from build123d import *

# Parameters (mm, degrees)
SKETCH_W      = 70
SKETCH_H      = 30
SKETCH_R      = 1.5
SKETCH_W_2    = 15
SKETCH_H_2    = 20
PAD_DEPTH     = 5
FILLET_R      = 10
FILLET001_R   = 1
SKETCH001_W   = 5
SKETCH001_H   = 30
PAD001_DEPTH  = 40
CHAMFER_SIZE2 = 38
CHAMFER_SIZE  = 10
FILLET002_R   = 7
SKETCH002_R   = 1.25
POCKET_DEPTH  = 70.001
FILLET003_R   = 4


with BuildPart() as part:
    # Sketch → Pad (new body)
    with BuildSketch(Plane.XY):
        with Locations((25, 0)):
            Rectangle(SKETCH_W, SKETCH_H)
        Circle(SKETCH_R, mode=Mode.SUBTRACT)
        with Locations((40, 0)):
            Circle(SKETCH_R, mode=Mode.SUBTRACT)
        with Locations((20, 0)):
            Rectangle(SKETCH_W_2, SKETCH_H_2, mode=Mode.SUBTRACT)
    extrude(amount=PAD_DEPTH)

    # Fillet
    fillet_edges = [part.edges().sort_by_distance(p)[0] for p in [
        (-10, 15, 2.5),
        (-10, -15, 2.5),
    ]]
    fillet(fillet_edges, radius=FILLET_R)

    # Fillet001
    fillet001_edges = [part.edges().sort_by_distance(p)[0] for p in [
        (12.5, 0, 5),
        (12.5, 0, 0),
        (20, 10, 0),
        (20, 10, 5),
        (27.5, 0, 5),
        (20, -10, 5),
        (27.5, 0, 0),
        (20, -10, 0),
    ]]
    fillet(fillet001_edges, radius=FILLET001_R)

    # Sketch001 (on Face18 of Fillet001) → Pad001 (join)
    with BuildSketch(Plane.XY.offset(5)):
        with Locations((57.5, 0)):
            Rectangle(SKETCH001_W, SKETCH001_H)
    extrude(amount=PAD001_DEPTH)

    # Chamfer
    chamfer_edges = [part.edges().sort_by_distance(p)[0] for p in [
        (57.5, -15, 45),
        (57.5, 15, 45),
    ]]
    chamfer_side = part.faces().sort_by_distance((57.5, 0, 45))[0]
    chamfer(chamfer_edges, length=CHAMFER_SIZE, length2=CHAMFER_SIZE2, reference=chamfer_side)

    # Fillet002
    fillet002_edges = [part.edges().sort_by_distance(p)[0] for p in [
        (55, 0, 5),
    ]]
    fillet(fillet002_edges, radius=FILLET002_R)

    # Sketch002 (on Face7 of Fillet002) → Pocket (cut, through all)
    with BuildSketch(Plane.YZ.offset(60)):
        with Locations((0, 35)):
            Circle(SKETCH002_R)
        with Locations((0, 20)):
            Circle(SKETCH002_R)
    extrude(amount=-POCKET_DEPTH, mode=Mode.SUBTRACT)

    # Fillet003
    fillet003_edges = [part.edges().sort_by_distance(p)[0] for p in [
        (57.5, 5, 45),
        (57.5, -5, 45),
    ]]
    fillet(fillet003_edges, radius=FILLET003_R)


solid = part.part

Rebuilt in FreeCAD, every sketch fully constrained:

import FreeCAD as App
import Part
import Sketcher
from FreeCAD import Vector


def edges_at(feature, points):
    """Names of the edges that pass closest to the given points."""
    edges = feature.Shape.Edges
    near = lambda p: min(range(len(edges)), key=lambda i: edges[i].distToShape(Part.Vertex(*p))[0])
    return sorted({f"Edge{near(p) + 1}" for p in points})

doc = App.newDocument("Part")
body = doc.addObject("PartDesign::Body", "Body")

# Sketch on XY plane
sketch1 = body.newObject("Sketcher::SketchObject", "Sketch")
sketch1.AttachmentSupport = (doc.getObject("XY_Plane"), [""])
sketch1.MapMode = "FlatFace"
sketch1.addGeometry([
    Part.LineSegment(Vector(-10, 15, 0), Vector(-10, -15, 0)),  # 0
    Part.LineSegment(Vector(-10, -15, 0), Vector(60, -15, 0)),  # 1
    Part.LineSegment(Vector(60, -15, 0), Vector(60, 15, 0)),  # 2
    Part.LineSegment(Vector(60, 15, 0), Vector(-10, 15, 0)),  # 3
    Part.Circle(Vector(0, 0, 0), Vector(0, 0, 1), 1.5),  # 4
    Part.LineSegment(Vector(27.5, -10, 0), Vector(12.5, -10, 0)),  # 5
    Part.LineSegment(Vector(12.5, -10, 0), Vector(12.5, 10, 0)),  # 6
    Part.LineSegment(Vector(12.5, 10, 0), Vector(27.5, 10, 0)),  # 7
    Part.LineSegment(Vector(27.5, 10, 0), Vector(27.5, -10, 0)),  # 8
    Part.Circle(Vector(40, 0, 0), Vector(0, 0, 1), 1.5),  # 9
], False)
sketch1.addConstraint([
    Sketcher.Constraint("Coincident", 0, 2, 1, 1),
    Sketcher.Constraint("Coincident", 1, 2, 2, 1),
    Sketcher.Constraint("Coincident", 2, 2, 3, 1),
    Sketcher.Constraint("Coincident", 3, 2, 0, 1),
    Sketcher.Constraint("Coincident", 5, 2, 6, 1),
    Sketcher.Constraint("Coincident", 6, 2, 7, 1),
    Sketcher.Constraint("Coincident", 7, 2, 8, 1),
    Sketcher.Constraint("Coincident", 8, 2, 5, 1),
    Sketcher.Constraint("Vertical", 0),
    Sketcher.Constraint("Horizontal", 1),
    Sketcher.Constraint("Vertical", 2),
    Sketcher.Constraint("Horizontal", 3),
    Sketcher.Constraint("Horizontal", 5),
    Sketcher.Constraint("Vertical", 6),
    Sketcher.Constraint("Horizontal", 7),
    Sketcher.Constraint("Vertical", 8),
    Sketcher.Constraint("Coincident", 4, 3, -1, 1),
    Sketcher.Constraint("Equal", 4, 9),
    Sketcher.Constraint("PointOnObject", 9, 3, -1),
    Sketcher.Constraint("Diameter", 4, 3.0),
    Sketcher.Constraint("DistanceX", 1, 1, 1, 2, 70.0),
    Sketcher.Constraint("DistanceX", 5, 2, 5, 1, 15.0),
    Sketcher.Constraint("DistanceY", 0, 2, 0, 1, 30.0),
    Sketcher.Constraint("DistanceY", 6, 1, 6, 2, 20.0),
    Sketcher.Constraint("DistanceX", -1, 1, 9, 3, 40.0),
    Sketcher.Constraint("DistanceX", 0, 2, -1, 1, 10.0),
    Sketcher.Constraint("DistanceY", 0, 2, -1, 1, 15.0),
    Sketcher.Constraint("DistanceY", 5, 2, -1, 1, 10.0),
    Sketcher.Constraint("DistanceX", -1, 1, 5, 2, 12.5),
])
pad1 = body.newObject("PartDesign::Pad", "Pad")
pad1.Profile = sketch1
pad1.Length = 5
doc.recompute()

fillet = body.newObject("PartDesign::Fillet", "Fillet")
fillet.Base = (pad1, edges_at(pad1, [(-10, 15, 2.5), (-10, -15, 2.5)]))
fillet.Radius = 10
doc.recompute()

fillet2 = body.newObject("PartDesign::Fillet", "Fillet001")
fillet2.Base = (fillet, edges_at(fillet, [
    (12.5, 0, 5),
    (12.5, 0, 0),
    (20, 10, 0),
    (20, 10, 5),
    (27.5, 0, 5),
    (20, -10, 5),
    (27.5, 0, 0),
    (20, -10, 0),
]))
fillet2.Radius = 1

# Sketch on XY plane
sketch2 = body.newObject("Sketcher::SketchObject", "Sketch001")
sketch2.AttachmentSupport = (doc.getObject("XY_Plane"), [""])
sketch2.MapMode = "FlatFace"
sketch2.AttachmentOffset = App.Placement(Vector(0, 0, 5), App.Rotation())
sketch2.addGeometry([
    Part.LineSegment(Vector(55, 15, 0), Vector(55, -15, 0)),
    Part.LineSegment(Vector(55, -15, 0), Vector(60, -15, 0)),
    Part.LineSegment(Vector(60, -15, 0), Vector(60, 15, 0)),
    Part.LineSegment(Vector(60, 15, 0), Vector(55, 15, 0)),
], False)
sketch2.addConstraint([
    Sketcher.Constraint("Coincident", 0, 2, 1, 1),
    Sketcher.Constraint("Coincident", 1, 2, 2, 1),
    Sketcher.Constraint("Coincident", 2, 2, 3, 1),
    Sketcher.Constraint("Coincident", 3, 2, 0, 1),
    Sketcher.Constraint("Vertical", 0),
    Sketcher.Constraint("Horizontal", 1),
    Sketcher.Constraint("Vertical", 2),
    Sketcher.Constraint("Horizontal", 3),
    Sketcher.Constraint("DistanceX", 1, 1, 1, 2, 5.0),
    Sketcher.Constraint("DistanceY", 0, 2, 0, 1, 30.0),
    Sketcher.Constraint("DistanceX", -1, 1, 0, 2, 55.0),
    Sketcher.Constraint("DistanceY", 0, 2, -1, 1, 15.0),
])
pad2 = body.newObject("PartDesign::Pad", "Pad001")
pad2.Profile = sketch2
pad2.Length = 40
doc.recompute()

chamfer = body.newObject("PartDesign::Chamfer", "Chamfer")
chamfer.Base = (pad2, edges_at(pad2, [(57.5, -15, 45), (57.5, 15, 45)]))
chamfer.ChamferType = "Two distances"
chamfer.Size = 10
chamfer.Size2 = 38
doc.recompute()

fillet3 = body.newObject("PartDesign::Fillet", "Fillet002")
fillet3.Base = (chamfer, edges_at(chamfer, [(55, 0, 5)]))
fillet3.Radius = 7

# Sketch on YZ plane
sketch3 = body.newObject("Sketcher::SketchObject", "Sketch002")
sketch3.AttachmentSupport = (doc.getObject("YZ_Plane"), [""])
sketch3.MapMode = "FlatFace"
sketch3.AttachmentOffset = App.Placement(Vector(0, 0, 60), App.Rotation())
sketch3.addGeometry([
    Part.Circle(Vector(0, 35, 0), Vector(0, 0, 1), 1.2),
    Part.Circle(Vector(0, 20, 0), Vector(0, 0, 1), 1.2),
], False)
sketch3.addConstraint([
    Sketcher.Constraint("Equal", 0, 1),
    Sketcher.Constraint("PointOnObject", 0, 3, -2),
    Sketcher.Constraint("PointOnObject", 1, 3, -2),
    Sketcher.Constraint("Diameter", 0, 2.5),
    Sketcher.Constraint("DistanceY", -1, 1, 0, 3, 35.0),
    Sketcher.Constraint("DistanceY", -1, 1, 1, 3, 20.0),
])
pocket1 = body.newObject("PartDesign::Pocket", "Pocket")
pocket1.Profile = sketch3
pocket1.Type = "ThroughAll"
doc.recompute()

fillet4 = body.newObject("PartDesign::Fillet", "Fillet003")
fillet4.Base = (pocket1, edges_at(pocket1, [(57.5, 5, 45), (57.5, -5, 45)]))
fillet4.Radius = 4

doc.recompute()
